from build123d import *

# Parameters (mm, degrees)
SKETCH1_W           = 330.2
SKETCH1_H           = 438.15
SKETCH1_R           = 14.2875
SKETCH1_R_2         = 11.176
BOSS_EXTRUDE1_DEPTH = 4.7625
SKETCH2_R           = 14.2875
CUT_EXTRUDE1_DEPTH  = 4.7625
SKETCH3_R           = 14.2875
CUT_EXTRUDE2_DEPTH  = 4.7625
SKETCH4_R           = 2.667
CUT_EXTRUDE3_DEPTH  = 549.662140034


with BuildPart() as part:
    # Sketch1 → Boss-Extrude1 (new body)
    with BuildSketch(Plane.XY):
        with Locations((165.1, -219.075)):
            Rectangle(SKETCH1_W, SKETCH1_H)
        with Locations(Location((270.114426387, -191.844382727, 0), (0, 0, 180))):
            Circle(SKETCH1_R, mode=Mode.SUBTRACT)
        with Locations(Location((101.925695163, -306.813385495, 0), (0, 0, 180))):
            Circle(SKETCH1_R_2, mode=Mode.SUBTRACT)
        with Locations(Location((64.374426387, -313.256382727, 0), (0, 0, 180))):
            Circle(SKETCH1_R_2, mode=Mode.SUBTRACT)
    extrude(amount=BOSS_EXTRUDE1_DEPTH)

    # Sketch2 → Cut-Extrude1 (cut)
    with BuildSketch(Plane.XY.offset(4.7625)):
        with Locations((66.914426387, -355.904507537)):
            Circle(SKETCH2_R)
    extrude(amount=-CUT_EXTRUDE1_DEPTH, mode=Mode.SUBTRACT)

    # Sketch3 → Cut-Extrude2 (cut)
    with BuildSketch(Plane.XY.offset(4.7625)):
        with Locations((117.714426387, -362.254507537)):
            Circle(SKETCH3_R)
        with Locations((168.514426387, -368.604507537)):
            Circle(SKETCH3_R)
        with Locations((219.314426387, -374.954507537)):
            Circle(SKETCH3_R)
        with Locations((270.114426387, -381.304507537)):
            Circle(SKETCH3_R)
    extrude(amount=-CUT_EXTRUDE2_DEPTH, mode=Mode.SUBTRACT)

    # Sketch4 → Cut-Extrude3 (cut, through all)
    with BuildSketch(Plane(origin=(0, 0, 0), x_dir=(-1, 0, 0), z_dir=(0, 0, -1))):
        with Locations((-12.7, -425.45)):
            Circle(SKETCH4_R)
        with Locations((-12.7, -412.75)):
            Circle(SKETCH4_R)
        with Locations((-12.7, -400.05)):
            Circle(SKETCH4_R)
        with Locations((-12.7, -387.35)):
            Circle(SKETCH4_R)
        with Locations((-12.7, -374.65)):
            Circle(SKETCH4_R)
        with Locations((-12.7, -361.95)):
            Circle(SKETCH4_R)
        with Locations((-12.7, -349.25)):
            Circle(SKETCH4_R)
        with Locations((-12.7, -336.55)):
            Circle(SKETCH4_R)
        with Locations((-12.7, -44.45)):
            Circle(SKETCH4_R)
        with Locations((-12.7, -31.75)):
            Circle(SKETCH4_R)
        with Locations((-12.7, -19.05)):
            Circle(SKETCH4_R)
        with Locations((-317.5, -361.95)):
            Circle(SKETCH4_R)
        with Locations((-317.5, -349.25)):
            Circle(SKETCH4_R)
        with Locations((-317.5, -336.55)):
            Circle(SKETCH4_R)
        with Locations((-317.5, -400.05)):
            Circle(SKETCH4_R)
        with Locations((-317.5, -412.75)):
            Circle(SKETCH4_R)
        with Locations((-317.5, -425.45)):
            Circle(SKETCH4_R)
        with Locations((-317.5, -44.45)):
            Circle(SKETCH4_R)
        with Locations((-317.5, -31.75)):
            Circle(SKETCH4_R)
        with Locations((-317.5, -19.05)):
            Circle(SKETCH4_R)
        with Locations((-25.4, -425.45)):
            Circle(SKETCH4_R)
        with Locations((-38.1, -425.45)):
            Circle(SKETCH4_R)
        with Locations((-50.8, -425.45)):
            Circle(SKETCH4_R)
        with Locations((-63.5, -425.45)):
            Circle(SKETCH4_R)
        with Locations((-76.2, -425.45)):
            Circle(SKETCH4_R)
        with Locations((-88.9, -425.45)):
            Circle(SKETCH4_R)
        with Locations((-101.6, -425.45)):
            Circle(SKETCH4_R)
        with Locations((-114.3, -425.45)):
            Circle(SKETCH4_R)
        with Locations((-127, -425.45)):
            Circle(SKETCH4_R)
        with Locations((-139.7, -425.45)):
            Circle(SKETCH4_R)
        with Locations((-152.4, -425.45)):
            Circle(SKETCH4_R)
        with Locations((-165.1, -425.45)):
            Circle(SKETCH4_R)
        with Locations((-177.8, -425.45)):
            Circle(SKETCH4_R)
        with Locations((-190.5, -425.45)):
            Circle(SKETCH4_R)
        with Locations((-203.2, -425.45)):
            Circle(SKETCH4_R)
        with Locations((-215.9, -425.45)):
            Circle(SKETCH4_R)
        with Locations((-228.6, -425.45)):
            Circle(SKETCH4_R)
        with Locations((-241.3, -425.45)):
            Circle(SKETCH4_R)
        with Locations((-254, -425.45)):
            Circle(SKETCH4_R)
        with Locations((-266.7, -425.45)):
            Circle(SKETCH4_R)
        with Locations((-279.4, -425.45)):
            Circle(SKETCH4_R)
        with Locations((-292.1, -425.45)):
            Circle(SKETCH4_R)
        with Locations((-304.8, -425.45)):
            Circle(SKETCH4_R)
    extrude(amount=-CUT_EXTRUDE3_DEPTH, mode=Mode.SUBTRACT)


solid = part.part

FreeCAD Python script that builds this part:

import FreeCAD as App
import Part
import Sketcher
from FreeCAD import Vector
Q = App.Units.Quantity


def add_polygon(sketch, points):
    """Adds a closed chain of lines whose ends are joined by coincident constraints."""
    first, n = sketch.GeometryCount, len(points)
    for a, b in zip(points, points[1:] + points[:1]):
        sketch.addGeometry(Part.LineSegment(App.Vector(*a, 0), App.Vector(*b, 0)), False)
    for i in range(n):
        sketch.addConstraint(Sketcher.Constraint("Coincident", first + i, 2, first + (i + 1) % n, 1))

doc = App.newDocument("Part")
body = doc.addObject("PartDesign::Body", "Body")

sketch1 = body.newObject("Sketcher::SketchObject", "Sketch")
sketch1.AttachmentSupport = (doc.getObject("XY_Plane"), [""])
sketch1.MapMode = "FlatFace"
add_polygon(sketch1, [(0, 0), (0, -438), (330, -438), (330, 0)])
sketch1.addGeometry(Part.Circle(Vector(64, -313, 0), Vector(0, 0, 1), 11), False)
sketch1.addGeometry(Part.Circle(Vector(102, -307, 0), Vector(0, 0, 1), 11), False)
sketch1.addGeometry(Part.Circle(Vector(270, -192, 0), Vector(0, 0, 1), 14), False)
sketch1.addConstraint(Sketcher.Constraint("Vertical", 0))
sketch1.addConstraint(Sketcher.Constraint("Horizontal", 1))
sketch1.addConstraint(Sketcher.Constraint("Vertical", 2))
sketch1.addConstraint(Sketcher.Constraint("Horizontal", 3))
sketch1.addConstraint(Sketcher.Constraint("Coincident", 3, 2, -1, 1))
sketch1.addConstraint(Sketcher.Constraint("Equal", 4, 5))
sketch1.addConstraint(Sketcher.Constraint("Diameter", 4, Q("0.88 in")))
sketch1.addConstraint(Sketcher.Constraint("DistanceX", 1, 1, 1, 2, Q("13 in")))
sketch1.addConstraint(Sketcher.Constraint("Diameter", 6, Q("1.125 in")))
sketch1.addConstraint(Sketcher.Constraint("DistanceY", 0, 2, 0, 1, Q("17.25 in")))
sketch1.addConstraint(Sketcher.Constraint("DistanceX", 4, 3, 6, 3, Q("8.1 in")))
sketch1.addConstraint(Sketcher.Constraint("DistanceY", 4, 3, 6, 3, Q("4.78 in")))
sketch1.addConstraint(Sketcher.Constraint("DistanceX", 4, 3, 5, 3, 37.551269))
sketch1.addConstraint(Sketcher.Constraint("DistanceX", -1, 1, 4, 3, 64.374426))
sketch1.addConstraint(Sketcher.Constraint("DistanceY", 4, 3, -1, 1, 313.256383))
sketch1.addConstraint(Sketcher.Constraint("DistanceY", 5, 3, -1, 1, 306.813385))
pad1 = body.newObject("PartDesign::Pad", "Pad")
pad1.Profile = sketch1
pad1.Length = Q("0.1875 in")

sketch2 = body.newObject("Sketcher::SketchObject", "Sketch001")
sketch2.AttachmentSupport = (doc.getObject("XY_Plane"), [""])
sketch2.MapMode = "FlatFace"
sketch2.AttachmentOffset = App.Placement(Vector(0, 0, 0.1875 * 25.4), App.Rotation())
sketch2.addGeometry(Part.Circle(Vector(67, -356, 0), Vector(0, 0, 1), 14), False)
sketch2.addConstraint(Sketcher.Constraint("Diameter", 0, Q("1.125 in")))
sketch2.addConstraint(Sketcher.Constraint("DistanceX", -1, 1, 0, 3, 66.914426))
sketch2.addConstraint(Sketcher.Constraint("DistanceY", 0, 3, -1, 1, 355.904508))
pocket1 = body.newObject("PartDesign::Pocket", "Pocket")
pocket1.Profile = sketch2
pocket1.Length = Q("0.1875 in")

sketch3 = body.newObject("Sketcher::SketchObject", "Sketch002")
sketch3.AttachmentSupport = (doc.getObject("XY_Plane"), [""])
sketch3.MapMode = "FlatFace"
sketch3.AttachmentOffset = App.Placement(Vector(0, 0, 0.1875 * 25.4), App.Rotation())
sketch3.addGeometry(Part.Circle(Vector(118, -362, 0), Vector(0, 0, 1), 14), False)
sketch3.addGeometry(Part.Circle(Vector(169, -369, 0), Vector(0, 0, 1), 14), False)
sketch3.addGeometry(Part.Circle(Vector(219, -375, 0), Vector(0, 0, 1), 14), False)
sketch3.addGeometry(Part.Circle(Vector(270, -381, 0), Vector(0, 0, 1), 14), False)
sketch3.addConstraint(Sketcher.Constraint("Equal", 0, 1))
sketch3.addConstraint(Sketcher.Constraint("Equal", 1, 2))
sketch3.addConstraint(Sketcher.Constraint("Equal", 2, 3))
sketch3.addConstraint(Sketcher.Constraint("Diameter", 0, Q("1.125 in")))
sketch3.addConstraint(Sketcher.Constraint("DistanceX", 0, 3, 1, 3, Q("2 in")))
sketch3.addConstraint(Sketcher.Constraint("DistanceX", 1, 3, 2, 3, Q("2 in")))
sketch3.addConstraint(Sketcher.Constraint("DistanceX", 2, 3, 3, 3, Q("2 in")))
sketch3.addConstraint(Sketcher.Constraint("DistanceY", 2, 3, 0, 3, Q("0.5 in")))
sketch3.addConstraint(Sketcher.Constraint("DistanceY", 3, 3, 1, 3, Q("0.5 in")))
sketch3.addConstraint(Sketcher.Constraint("DistanceY", 1, 3, 0, 3, Q("0.25 in")))
sketch3.addConstraint(Sketcher.Constraint("DistanceX", -1, 1, 0, 3, 117.714426))
sketch3.addConstraint(Sketcher.Constraint("DistanceY", 0, 3, -1, 1, 362.254508))
pocket2 = body.newObject("PartDesign::Pocket", "Pocket001")
pocket2.Profile = sketch3
pocket2.Length = Q("0.1875 in")

sketch4 = body.newObject("Sketcher::SketchObject", "Sketch003")
sketch4.AttachmentSupport = (doc.getObject("XY_Plane"), [""])
sketch4.MapMode = "FlatFace"
sketch4.addGeometry(Part.Circle(Vector(12.7, -425.4, 0), Vector(0, 0, 1), 2.7), False)
sketch4.addGeometry(Part.Circle(Vector(12.7, -412.8, 0), Vector(0, 0, 1), 2.7), False)
sketch4.addGeometry(Part.Circle(Vector(12.7, -400.1, 0), Vector(0, 0, 1), 2.7), False)
sketch4.addGeometry(Part.Circle(Vector(12.7, -387.4, 0), Vector(0, 0, 1), 2.7), False)
sketch4.addGeometry(Part.Circle(Vector(12.7, -374.6, 0), Vector(0, 0, 1), 2.7), False)
sketch4.addGeometry(Part.Circle(Vector(12.7, -361.9, 0), Vector(0, 0, 1), 2.7), False)
sketch4.addGeometry(Part.Circle(Vector(12.7, -349.2, 0), Vector(0, 0, 1), 2.7), False)
sketch4.addGeometry(Part.Circle(Vector(12.7, -336.6, 0), Vector(0, 0, 1), 2.7), False)
sketch4.addGeometry(Part.Circle(Vector(12.7, -44.5, 0), Vector(0, 0, 1), 2.7), False)
sketch4.addGeometry(Part.Circle(Vector(12.7, -31.8, 0), Vector(0, 0, 1), 2.7), False)
sketch4.addGeometry(Part.Circle(Vector(12.7, -19.1, 0), Vector(0, 0, 1), 2.7), False)
sketch4.addGeometry(Part.Circle(Vector(317.5, -361.9, 0), Vector(0, 0, 1), 2.7), False)
sketch4.addGeometry(Part.Circle(Vector(317.5, -349.2, 0), Vector(0, 0, 1), 2.7), False)
sketch4.addGeometry(Part.Circle(Vector(317.5, -336.6, 0), Vector(0, 0, 1), 2.7), False)
sketch4.addGeometry(Part.Circle(Vector(317.5, -400.1, 0), Vector(0, 0, 1), 2.7), False)
sketch4.addGeometry(Part.Circle(Vector(317.5, -412.8, 0), Vector(0, 0, 1), 2.7), False)
sketch4.addGeometry(Part.Circle(Vector(317.5, -425.4, 0), Vector(0, 0, 1), 2.7), False)
sketch4.addGeometry(Part.Circle(Vector(317.5, -44.5, 0), Vector(0, 0, 1), 2.7), False)
sketch4.addGeometry(Part.Circle(Vector(317.5, -31.8, 0), Vector(0, 0, 1), 2.7), False)
sketch4.addGeometry(Part.Circle(Vector(317.5, -19.1, 0), Vector(0, 0, 1), 2.7), False)
sketch4.addGeometry(Part.Circle(Vector(25.4, -425.4, 0), Vector(0, 0, 1), 2.7), False)
sketch4.addGeometry(Part.Circle(Vector(38.1, -425.4, 0), Vector(0, 0, 1), 2.7), False)
sketch4.addGeometry(Part.Circle(Vector(50.8, -425.4, 0), Vector(0, 0, 1), 2.7), False)
sketch4.addGeometry(Part.Circle(Vector(63.5, -425.4, 0), Vector(0, 0, 1), 2.7), False)
sketch4.addGeometry(Part.Circle(Vector(76.2, -425.4, 0), Vector(0, 0, 1), 2.7), False)
sketch4.addGeometry(Part.Circle(Vector(88.9, -425.4, 0), Vector(0, 0, 1), 2.7), False)
sketch4.addGeometry(Part.Circle(Vector(101.6, -425.4, 0), Vector(0, 0, 1), 2.7), False)
sketch4.addGeometry(Part.Circle(Vector(114.3, -425.4, 0), Vector(0, 0, 1), 2.7), False)
sketch4.addGeometry(Part.Circle(Vector(127, -425.4, 0), Vector(0, 0, 1), 2.7), False)
sketch4.addGeometry(Part.Circle(Vector(139.7, -425.4, 0), Vector(0, 0, 1), 2.7), False)
sketch4.addGeometry(Part.Circle(Vector(152.4, -425.4, 0), Vector(0, 0, 1), 2.7), False)
sketch4.addGeometry(Part.Circle(Vector(165.1, -425.4, 0), Vector(0, 0, 1), 2.7), False)
sketch4.addGeometry(Part.Circle(Vector(177.8, -425.4, 0), Vector(0, 0, 1), 2.7), False)
sketch4.addGeometry(Part.Circle(Vector(190.5, -425.4, 0), Vector(0, 0, 1), 2.7), False)
sketch4.addGeometry(Part.Circle(Vector(203.2, -425.4, 0), Vector(0, 0, 1), 2.7), False)
sketch4.addGeometry(Part.Circle(Vector(215.9, -425.4, 0), Vector(0, 0, 1), 2.7), False)
sketch4.addGeometry(Part.Circle(Vector(228.6, -425.4, 0), Vector(0, 0, 1), 2.7), False)
sketch4.addGeometry(Part.Circle(Vector(241.3, -425.4, 0), Vector(0, 0, 1), 2.7), False)
sketch4.addGeometry(Part.Circle(Vector(254, -425.4, 0), Vector(0, 0, 1), 2.7), False)
sketch4.addGeometry(Part.Circle(Vector(266.7, -425.4, 0), Vector(0, 0, 1), 2.7), False)
sketch4.addGeometry(Part.Circle(Vector(279.4, -425.4, 0), Vector(0, 0, 1), 2.7), False)
sketch4.addGeometry(Part.Circle(Vector(292.1, -425.4, 0), Vector(0, 0, 1), 2.7), False)
sketch4.addGeometry(Part.Circle(Vector(304.8, -425.4, 0), Vector(0, 0, 1), 2.7), False)
sketch4.addConstraint(Sketcher.Constraint("Equal", 0, 1))
sketch4.addConstraint(Sketcher.Constraint("Equal", 1, 2))
sketch4.addConstraint(Sketcher.Constraint("Equal", 2, 3))
sketch4.addConstraint(Sketcher.Constraint("Equal", 3, 4))
sketch4.addConstraint(Sketcher.Constraint("Equal", 4, 5))
sketch4.addConstraint(Sketcher.Constraint("Equal", 5, 6))
sketch4.addConstraint(Sketcher.Constraint("Equal", 6, 7))
sketch4.addConstraint(Sketcher.Constraint("Equal", 7, 8))
sketch4.addConstraint(Sketcher.Constraint("Equal", 8, 9))
sketch4.addConstraint(Sketcher.Constraint("Equal", 9, 10))
sketch4.addConstraint(Sketcher.Constraint("Equal", 10, 11))
sketch4.addConstraint(Sketcher.Constraint("Equal", 11, 12))
sketch4.addConstraint(Sketcher.Constraint("Equal", 12, 13))
sketch4.addConstraint(Sketcher.Constraint("Equal", 13, 14))
sketch4.addConstraint(Sketcher.Constraint("Equal", 14, 15))
sketch4.addConstraint(Sketcher.Constraint("Equal", 15, 16))
sketch4.addConstraint(Sketcher.Constraint("Equal", 16, 17))
sketch4.addConstraint(Sketcher.Constraint("Equal", 17, 18))
sketch4.addConstraint(Sketcher.Constraint("Equal", 18, 19))
sketch4.addConstraint(Sketcher.Constraint("Equal", 19, 20))
sketch4.addConstraint(Sketcher.Constraint("Equal", 20, 21))
sketch4.addConstraint(Sketcher.Constraint("Equal", 21, 22))
sketch4.addConstraint(Sketcher.Constraint("Equal", 22, 23))
sketch4.addConstraint(Sketcher.Constraint("Equal", 23, 24))
sketch4.addConstraint(Sketcher.Constraint("Equal", 24, 25))
sketch4.addConstraint(Sketcher.Constraint("Equal", 25, 26))
sketch4.addConstraint(Sketcher.Constraint("Equal", 26, 27))
sketch4.addConstraint(Sketcher.Constraint("Equal", 27, 28))
sketch4.addConstraint(Sketcher.Constraint("Equal", 28, 29))
sketch4.addConstraint(Sketcher.Constraint("Equal", 29, 30))
sketch4.addConstraint(Sketcher.Constraint("Equal", 30, 31))
sketch4.addConstraint(Sketcher.Constraint("Equal", 31, 32))
sketch4.addConstraint(Sketcher.Constraint("Equal", 32, 33))
sketch4.addConstraint(Sketcher.Constraint("Equal", 33, 34))
sketch4.addConstraint(Sketcher.Constraint("Equal", 34, 35))
sketch4.addConstraint(Sketcher.Constraint("Equal", 35, 36))
sketch4.addConstraint(Sketcher.Constraint("Equal", 36, 37))
sketch4.addConstraint(Sketcher.Constraint("Equal", 37, 38))
sketch4.addConstraint(Sketcher.Constraint("Equal", 38, 39))
sketch4.addConstraint(Sketcher.Constraint("Equal", 39, 40))
sketch4.addConstraint(Sketcher.Constraint("Equal", 40, 41))
sketch4.addConstraint(Sketcher.Constraint("Equal", 41, 42))
sketch4.addConstraint(Sketcher.Constraint("Horizontal", 5, 3, 11, 3))
sketch4.addConstraint(Sketcher.Constraint("Horizontal", 6, 3, 12, 3))
sketch4.addConstraint(Sketcher.Constraint("Horizontal", 7, 3, 13, 3))
sketch4.addConstraint(Sketcher.Constraint("Horizontal", 2, 3, 14, 3))
sketch4.addConstraint(Sketcher.Constraint("Horizontal", 1, 3, 15, 3))
sketch4.addConstraint(Sketcher.Constraint("Horizontal", 0, 3, 16, 3))
sketch4.addConstraint(Sketcher.Constraint("Horizontal", 8, 3, 17, 3))
sketch4.addConstraint(Sketcher.Constraint("Horizontal", 9, 3, 18, 3))
sketch4.addConstraint(Sketcher.Constraint("Horizontal", 10, 3, 19, 3))
sketch4.addConstraint(Sketcher.Constraint("Horizontal", 16, 3, 20, 3))
sketch4.addConstraint(Sketcher.Constraint("Horizontal", 20, 3, 21, 3))
sketch4.addConstraint(Sketcher.Constraint("Horizontal", 21, 3, 22, 3))
sketch4.addConstraint(Sketcher.Constraint("Horizontal", 22, 3, 23, 3))
sketch4.addConstraint(Sketcher.Constraint("Horizontal", 23, 3, 24, 3))
sketch4.addConstraint(Sketcher.Constraint("Horizontal", 24, 3, 25, 3))
sketch4.addConstraint(Sketcher.Constraint("Horizontal", 25, 3, 26, 3))
sketch4.addConstraint(Sketcher.Constraint("Horizontal", 26, 3, 27, 3))
sketch4.addConstraint(Sketcher.Constraint("Horizontal", 27, 3, 28, 3))
sketch4.addConstraint(Sketcher.Constraint("Horizontal", 28, 3, 29, 3))
sketch4.addConstraint(Sketcher.Constraint("Horizontal", 29, 3, 30, 3))
sketch4.addConstraint(Sketcher.Constraint("Horizontal", 30, 3, 31, 3))
sketch4.addConstraint(Sketcher.Constraint("Horizontal", 31, 3, 32, 3))
sketch4.addConstraint(Sketcher.Constraint("Horizontal", 32, 3, 33, 3))
sketch4.addConstraint(Sketcher.Constraint("Horizontal", 33, 3, 34, 3))
sketch4.addConstraint(Sketcher.Constraint("Horizontal", 34, 3, 35, 3))
sketch4.addConstraint(Sketcher.Constraint("Horizontal", 35, 3, 36, 3))
sketch4.addConstraint(Sketcher.Constraint("Horizontal", 36, 3, 37, 3))
sketch4.addConstraint(Sketcher.Constraint("Horizontal", 37, 3, 38, 3))
sketch4.addConstraint(Sketcher.Constraint("Horizontal", 38, 3, 39, 3))
sketch4.addConstraint(Sketcher.Constraint("Horizontal", 39, 3, 40, 3))
sketch4.addConstraint(Sketcher.Constraint("Horizontal", 40, 3, 41, 3))
sketch4.addConstraint(Sketcher.Constraint("Horizontal", 41, 3, 42, 3))
sketch4.addConstraint(Sketcher.Constraint("Vertical", 0, 3, 1, 3))
sketch4.addConstraint(Sketcher.Constraint("Vertical", 1, 3, 2, 3))
sketch4.addConstraint(Sketcher.Constraint("Vertical", 2, 3, 3, 3))
sketch4.addConstraint(Sketcher.Constraint("Vertical", 3, 3, 4, 3))
sketch4.addConstraint(Sketcher.Constraint("Vertical", 4, 3, 5, 3))
sketch4.addConstraint(Sketcher.Constraint("Vertical", 5, 3, 6, 3))
sketch4.addConstraint(Sketcher.Constraint("Vertical", 6, 3, 7, 3))
sketch4.addConstraint(Sketcher.Constraint("Vertical", 7, 3, 8, 3))
sketch4.addConstraint(Sketcher.Constraint("Vertical", 8, 3, 9, 3))
sketch4.addConstraint(Sketcher.Constraint("Vertical", 9, 3, 10, 3))
sketch4.addConstraint(Sketcher.Constraint("Vertical", 11, 3, 12, 3))
sketch4.addConstraint(Sketcher.Constraint("Vertical", 12, 3, 13, 3))
sketch4.addConstraint(Sketcher.Constraint("Vertical", 13, 3, 14, 3))
sketch4.addConstraint(Sketcher.Constraint("Vertical", 14, 3, 15, 3))
sketch4.addConstraint(Sketcher.Constraint("Vertical", 15, 3, 16, 3))
sketch4.addConstraint(Sketcher.Constraint("Vertical", 16, 3, 17, 3))
sketch4.addConstraint(Sketcher.Constraint("Vertical", 17, 3, 18, 3))
sketch4.addConstraint(Sketcher.Constraint("Vertical", 18, 3, 19, 3))
sketch4.addConstraint(Sketcher.Constraint("Diameter", 0, Q("0.21 in")))
sketch4.addConstraint(Sketcher.Constraint("DistanceX", -1, 1, 20, 3, Q("1 in")))
sketch4.addConstraint(Sketcher.Constraint("DistanceX", -1, 1, 22, 3, Q("2 in")))
sketch4.addConstraint(Sketcher.Constraint("DistanceX", -1, 1, 24, 3, Q("3 in")))
sketch4.addConstraint(Sketcher.Constraint("DistanceX", -1, 1, 26, 3, Q("4 in")))
sketch4.addConstraint(Sketcher.Constraint("DistanceX", -1, 1, 28, 3, Q("5 in")))
sketch4.addConstraint(Sketcher.Constraint("DistanceX", -1, 1, 30, 3, Q("6 in")))
sketch4.addConstraint(Sketcher.Constraint("DistanceX", -1, 1, 32, 3, Q("7 in")))
sketch4.addConstraint(Sketcher.Constraint("DistanceX", -1, 1, 34, 3, Q("8 in")))
sketch4.addConstraint(Sketcher.Constraint("DistanceX", -1, 1, 36, 3, Q("9 in")))
sketch4.addConstraint(Sketcher.Constraint("DistanceX", -1, 1, 38, 3, Q("10 in")))
sketch4.addConstraint(Sketcher.Constraint("DistanceX", -1, 1, 40, 3, Q("11 in")))
sketch4.addConstraint(Sketcher.Constraint("DistanceX", -1, 1, 42, 3, Q("12 in")))
sketch4.addConstraint(Sketcher.Constraint("DistanceY", 0, 3, 2, 3, Q("1 in")))
sketch4.addConstraint(Sketcher.Constraint("DistanceY", 1, 3, 3, 3, Q("1 in")))
sketch4.addConstraint(Sketcher.Constraint("DistanceY", 2, 3, 4, 3, Q("1 in")))
sketch4.addConstraint(Sketcher.Constraint("DistanceY", 3, 3, 5, 3, Q("1 in")))
sketch4.addConstraint(Sketcher.Constraint("DistanceY", 4, 3, 6, 3, Q("1 in")))
sketch4.addConstraint(Sketcher.Constraint("DistanceY", 5, 3, 7, 3, Q("1 in")))
sketch4.addConstraint(Sketcher.Constraint("DistanceY", 6, 3, 8, 3, Q("12 in")))
sketch4.addConstraint(Sketcher.Constraint("DistanceY", 7, 3, 9, 3, Q("12 in")))
sketch4.addConstraint(Sketcher.Constraint("DistanceY", 8, 3, 10, 3, Q("1 in")))
sketch4.addConstraint(Sketcher.Constraint("DistanceX", 5, 3, 11, 3, Q("12 in")))
sketch4.addConstraint(Sketcher.Constraint("DistanceX", 0, 3, 21, 3, Q("1 in")))
sketch4.addConstraint(Sketcher.Constraint("DistanceX", 21, 3, 23, 3, Q("1 in")))
sketch4.addConstraint(Sketcher.Constraint("DistanceX", 23, 3, 25, 3, Q("1 in")))
sketch4.addConstraint(Sketcher.Constraint("DistanceX", 25, 3, 27, 3, Q("1 in")))
sketch4.addConstraint(Sketcher.Constraint("DistanceX", 27, 3, 29, 3, Q("1 in")))
sketch4.addConstraint(Sketcher.Constraint("DistanceX", 29, 3, 31, 3, Q("1 in")))
sketch4.addConstraint(Sketcher.Constraint("DistanceX", 31, 3, 33, 3, Q("1 in")))
sketch4.addConstraint(Sketcher.Constraint("DistanceX", 33, 3, 35, 3, Q("1 in")))
sketch4.addConstraint(Sketcher.Constraint("DistanceX", 35, 3, 37, 3, Q("1 in")))
sketch4.addConstraint(Sketcher.Constraint("DistanceX", 37, 3, 39, 3, Q("1 in")))
sketch4.addConstraint(Sketcher.Constraint("DistanceX", 41, 3, 16, 3, Q("1 in")))
sketch4.addConstraint(Sketcher.Constraint("DistanceX", -1, 1, 0, 3, Q("0.5 in")))
sketch4.addConstraint(Sketcher.Constraint("DistanceY", 0, 3, 1, 3, Q("0.5 in")))
sketch4.addConstraint(Sketcher.Constraint("DistanceY", 0, 3, -1, 1, Q("16.75 in")))
pocket3 = body.newObject("PartDesign::Pocket", "Pocket002")
pocket3.Profile = sketch4
pocket3.Type = "ThroughAll"
pocket3.Reversed = True

doc.recompute()
